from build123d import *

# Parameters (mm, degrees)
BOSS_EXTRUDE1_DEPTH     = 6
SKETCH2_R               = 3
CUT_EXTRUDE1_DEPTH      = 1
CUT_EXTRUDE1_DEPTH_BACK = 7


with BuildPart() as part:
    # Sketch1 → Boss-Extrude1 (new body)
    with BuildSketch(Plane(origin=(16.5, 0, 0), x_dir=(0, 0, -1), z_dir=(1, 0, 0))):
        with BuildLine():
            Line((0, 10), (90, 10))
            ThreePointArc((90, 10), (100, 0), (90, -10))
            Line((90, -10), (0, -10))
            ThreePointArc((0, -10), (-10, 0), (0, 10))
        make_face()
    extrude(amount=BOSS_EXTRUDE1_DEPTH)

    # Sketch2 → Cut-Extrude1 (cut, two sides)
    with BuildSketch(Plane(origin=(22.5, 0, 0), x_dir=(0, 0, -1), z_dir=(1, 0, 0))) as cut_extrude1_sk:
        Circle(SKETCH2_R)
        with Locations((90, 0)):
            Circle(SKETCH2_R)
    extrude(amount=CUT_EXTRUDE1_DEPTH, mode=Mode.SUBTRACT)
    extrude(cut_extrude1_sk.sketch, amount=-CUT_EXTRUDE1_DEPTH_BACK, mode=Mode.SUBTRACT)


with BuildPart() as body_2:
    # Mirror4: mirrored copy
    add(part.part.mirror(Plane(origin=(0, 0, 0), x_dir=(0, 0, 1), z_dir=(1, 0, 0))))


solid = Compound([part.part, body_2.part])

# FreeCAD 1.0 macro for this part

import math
import FreeCAD as App
import Part
import Sketcher

V = App.Vector
Q = App.Units.Quantity

doc = App.newDocument("Part")
body = doc.addObject("PartDesign::Body", "Body")

# Sketch on YZ plane
sketch1 = body.newObject("Sketcher::SketchObject", "Sketch")
sketch1.AttachmentSupport = (doc.getObject("YZ_Plane"), [""])
sketch1.MapMode = "FlatFace"
sketch1.AttachmentOffset = App.Placement(V(0, 0, 16.5), App.Rotation())
sketch1.addGeometry([
    Part.LineSegment(V(10, -90, 0), V(10, 0, 0)),
    Part.ArcOfCircle(Part.Circle(V(0, 0, 0), V(0, 0, 1), 10), math.radians(0), math.radians(180)),
    Part.LineSegment(V(-10, 0, 0), V(-10, -90, 0)),
    Part.ArcOfCircle(Part.Circle(V(0, -90, 0), V(0, 0, 1), 10), math.radians(180), math.radians(360)),
], False)
sketch1.addConstraint([
    Sketcher.Constraint("Tangent", 0, 2, 1, 1),
    Sketcher.Constraint("Tangent", 1, 2, 2, 1),
    Sketcher.Constraint("Tangent", 2, 2, 3, 1),
    Sketcher.Constraint("Tangent", 3, 2, 0, 1),
    Sketcher.Constraint("Vertical", 0),
    Sketcher.Constraint("Vertical", 2),
    Sketcher.Constraint("Coincident", 1, 3, -1, 1),
    Sketcher.Constraint("Radius", 1, Q("10 mm")),
    Sketcher.Constraint("DistanceY", 0, 1, 0, 2, Q("90 mm")),
])
pad1 = body.newObject("PartDesign::Pad", "Pad")
pad1.Profile = sketch1
pad1.Length = 6

# Sketch on YZ plane
sketch2 = body.newObject("Sketcher::SketchObject", "Sketch001")
sketch2.AttachmentSupport = (doc.getObject("YZ_Plane"), [""])
sketch2.MapMode = "FlatFace"
sketch2.AttachmentOffset = App.Placement(V(0, 0, 22.5), App.Rotation())
sketch2.addGeometry([
    Part.Circle(V(0, 0, 0), V(0, 0, 1), 3),
    Part.Circle(V(0, -90, 0), V(0, 0, 1), 3),
], False)
sketch2.addConstraint([
    Sketcher.Constraint("Coincident", 0, 3, -1, 1),
    Sketcher.Constraint("Equal", 0, 1),
    Sketcher.Constraint("PointOnObject", 1, 3, -2),
    Sketcher.Constraint("Diameter", 0, Q("6 mm")),
    Sketcher.Constraint("DistanceY", 1, 3, -1, 1, Q("90 mm")),
])
pocket1 = body.newObject("PartDesign::Pocket", "Pocket")
pocket1.Profile = sketch2
pocket1.Type = "ThroughAll"
pocket1.Midplane = True
body2 = doc.addObject("PartDesign::Body", "Body001")
doc.recompute()

mirroring = doc.addObject("Part::Mirroring", "Mirroring")
mirroring.Source = body
mirroring.Base = V(0, 0, 0)
mirroring.Normal = V(1, 0, 0)
body2.BaseFeature = mirroring
doc.recompute()
mirroring.Visibility = False

doc.recompute()
